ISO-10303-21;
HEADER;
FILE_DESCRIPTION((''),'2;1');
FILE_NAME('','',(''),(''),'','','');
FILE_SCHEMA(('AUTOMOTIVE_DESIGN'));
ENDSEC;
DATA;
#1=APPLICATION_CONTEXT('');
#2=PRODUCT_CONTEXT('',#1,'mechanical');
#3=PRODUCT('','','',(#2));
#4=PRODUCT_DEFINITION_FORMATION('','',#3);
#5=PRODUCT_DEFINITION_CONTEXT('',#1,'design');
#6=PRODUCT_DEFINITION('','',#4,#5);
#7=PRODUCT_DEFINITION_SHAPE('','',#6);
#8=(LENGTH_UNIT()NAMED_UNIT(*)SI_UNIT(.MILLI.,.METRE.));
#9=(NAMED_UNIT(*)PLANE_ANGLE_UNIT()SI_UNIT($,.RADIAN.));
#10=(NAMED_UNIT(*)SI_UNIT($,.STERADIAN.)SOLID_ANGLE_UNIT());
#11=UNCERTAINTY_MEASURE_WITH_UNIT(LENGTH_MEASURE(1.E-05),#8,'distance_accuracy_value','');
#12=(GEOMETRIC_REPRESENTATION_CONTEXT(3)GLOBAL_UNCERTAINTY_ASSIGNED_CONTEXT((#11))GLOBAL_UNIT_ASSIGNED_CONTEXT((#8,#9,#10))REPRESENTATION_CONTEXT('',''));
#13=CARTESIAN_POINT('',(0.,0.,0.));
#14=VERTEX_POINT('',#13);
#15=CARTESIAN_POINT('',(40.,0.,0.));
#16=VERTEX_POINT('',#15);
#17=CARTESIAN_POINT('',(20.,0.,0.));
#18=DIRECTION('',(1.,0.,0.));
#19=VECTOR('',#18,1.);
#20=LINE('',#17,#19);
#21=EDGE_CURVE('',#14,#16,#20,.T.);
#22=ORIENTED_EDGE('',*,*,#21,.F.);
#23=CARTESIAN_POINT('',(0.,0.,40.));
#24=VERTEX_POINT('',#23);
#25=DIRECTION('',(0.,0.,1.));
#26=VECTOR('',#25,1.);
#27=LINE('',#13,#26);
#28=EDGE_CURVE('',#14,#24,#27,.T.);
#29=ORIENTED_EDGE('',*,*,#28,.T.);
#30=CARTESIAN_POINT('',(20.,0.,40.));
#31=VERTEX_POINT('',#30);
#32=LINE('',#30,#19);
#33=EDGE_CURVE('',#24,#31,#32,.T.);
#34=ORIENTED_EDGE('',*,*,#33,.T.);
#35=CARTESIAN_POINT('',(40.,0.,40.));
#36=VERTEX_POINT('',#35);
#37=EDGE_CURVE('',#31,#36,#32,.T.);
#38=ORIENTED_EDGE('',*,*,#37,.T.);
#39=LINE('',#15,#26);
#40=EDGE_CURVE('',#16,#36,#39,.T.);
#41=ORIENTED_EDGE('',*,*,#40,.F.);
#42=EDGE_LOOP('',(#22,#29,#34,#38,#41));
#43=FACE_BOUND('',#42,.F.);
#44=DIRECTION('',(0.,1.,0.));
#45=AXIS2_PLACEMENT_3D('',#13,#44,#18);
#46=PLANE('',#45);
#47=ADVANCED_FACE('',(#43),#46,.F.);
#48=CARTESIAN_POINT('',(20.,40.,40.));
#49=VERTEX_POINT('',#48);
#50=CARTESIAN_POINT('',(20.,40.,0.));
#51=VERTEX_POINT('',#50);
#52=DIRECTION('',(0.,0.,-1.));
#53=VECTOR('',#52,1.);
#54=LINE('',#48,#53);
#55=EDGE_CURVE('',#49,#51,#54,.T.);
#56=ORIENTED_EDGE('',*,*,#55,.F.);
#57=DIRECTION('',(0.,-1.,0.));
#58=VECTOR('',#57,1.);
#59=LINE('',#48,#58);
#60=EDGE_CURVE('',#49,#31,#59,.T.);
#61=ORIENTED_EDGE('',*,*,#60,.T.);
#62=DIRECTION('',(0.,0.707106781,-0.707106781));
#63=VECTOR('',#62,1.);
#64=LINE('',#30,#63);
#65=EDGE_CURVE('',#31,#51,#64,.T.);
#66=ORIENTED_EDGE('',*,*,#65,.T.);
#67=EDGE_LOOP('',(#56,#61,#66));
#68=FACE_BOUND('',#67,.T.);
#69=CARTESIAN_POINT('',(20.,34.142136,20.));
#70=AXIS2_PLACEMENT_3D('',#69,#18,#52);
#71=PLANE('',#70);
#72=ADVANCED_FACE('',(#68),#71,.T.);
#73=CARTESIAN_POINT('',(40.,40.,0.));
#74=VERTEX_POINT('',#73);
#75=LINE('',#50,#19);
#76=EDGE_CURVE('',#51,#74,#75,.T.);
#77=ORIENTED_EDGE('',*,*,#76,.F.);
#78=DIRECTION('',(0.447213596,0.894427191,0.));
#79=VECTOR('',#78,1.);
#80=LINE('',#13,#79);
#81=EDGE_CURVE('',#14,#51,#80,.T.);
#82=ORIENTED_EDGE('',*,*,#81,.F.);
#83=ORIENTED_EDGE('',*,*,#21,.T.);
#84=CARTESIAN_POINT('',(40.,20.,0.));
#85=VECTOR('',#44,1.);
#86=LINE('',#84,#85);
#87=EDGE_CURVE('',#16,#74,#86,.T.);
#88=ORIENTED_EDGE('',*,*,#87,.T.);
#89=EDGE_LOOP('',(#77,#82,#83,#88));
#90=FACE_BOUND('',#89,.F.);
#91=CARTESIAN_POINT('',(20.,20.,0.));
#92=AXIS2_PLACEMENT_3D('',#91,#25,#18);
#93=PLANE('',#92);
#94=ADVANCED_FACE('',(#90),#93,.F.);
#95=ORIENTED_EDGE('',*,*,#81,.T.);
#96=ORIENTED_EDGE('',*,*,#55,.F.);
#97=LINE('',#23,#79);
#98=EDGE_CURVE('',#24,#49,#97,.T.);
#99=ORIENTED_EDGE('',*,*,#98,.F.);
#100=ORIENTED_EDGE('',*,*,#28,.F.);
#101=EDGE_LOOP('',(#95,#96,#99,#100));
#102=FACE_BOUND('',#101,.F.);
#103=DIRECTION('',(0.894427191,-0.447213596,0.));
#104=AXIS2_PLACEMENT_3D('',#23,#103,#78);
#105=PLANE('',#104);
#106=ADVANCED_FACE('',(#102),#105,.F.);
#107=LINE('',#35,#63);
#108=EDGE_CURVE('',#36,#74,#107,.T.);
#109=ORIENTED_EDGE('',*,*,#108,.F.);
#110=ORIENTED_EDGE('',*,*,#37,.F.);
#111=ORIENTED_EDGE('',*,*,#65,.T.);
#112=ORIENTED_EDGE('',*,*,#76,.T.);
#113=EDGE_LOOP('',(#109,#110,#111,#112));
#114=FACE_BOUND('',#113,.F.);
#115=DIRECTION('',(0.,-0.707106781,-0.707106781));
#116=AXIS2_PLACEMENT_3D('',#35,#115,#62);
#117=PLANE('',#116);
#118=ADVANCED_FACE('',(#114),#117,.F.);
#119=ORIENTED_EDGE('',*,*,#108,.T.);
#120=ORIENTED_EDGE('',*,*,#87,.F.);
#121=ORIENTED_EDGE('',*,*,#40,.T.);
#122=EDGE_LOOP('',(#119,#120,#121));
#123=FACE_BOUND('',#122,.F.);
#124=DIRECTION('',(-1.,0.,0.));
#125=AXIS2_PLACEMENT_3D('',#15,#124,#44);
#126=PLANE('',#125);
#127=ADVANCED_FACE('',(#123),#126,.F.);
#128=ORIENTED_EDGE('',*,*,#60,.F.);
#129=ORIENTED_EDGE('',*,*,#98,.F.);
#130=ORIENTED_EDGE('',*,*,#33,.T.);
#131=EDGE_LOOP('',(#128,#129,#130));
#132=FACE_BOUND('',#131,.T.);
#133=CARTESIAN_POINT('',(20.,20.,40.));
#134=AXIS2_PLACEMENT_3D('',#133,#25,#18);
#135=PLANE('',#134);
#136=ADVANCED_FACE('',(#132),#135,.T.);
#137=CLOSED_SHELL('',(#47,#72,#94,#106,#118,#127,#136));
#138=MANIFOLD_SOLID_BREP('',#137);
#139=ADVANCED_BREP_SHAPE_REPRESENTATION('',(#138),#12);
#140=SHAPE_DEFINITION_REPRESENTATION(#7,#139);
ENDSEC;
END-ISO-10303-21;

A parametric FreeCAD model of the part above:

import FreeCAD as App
import Part
import Sketcher
from FreeCAD import Vector

doc = App.newDocument("Part")
params = doc.addObject("Spreadsheet::Sheet", "Params")
for row, (alias, value) in enumerate([
    ("sketch1_width", "40 mm"),
    ("pad1_length", "40 mm"),
    ("sketch2_width", "20 mm"),
    ("sketch2_height", "40 mm"),
    ("pocket1_length", "40 mm"),
    ("sketch3_width", "40 mm"),
    ("pocket2_length", "20 mm"),
], start=1):
    params.set(f"A{row}", alias)
    params.set(f"B{row}", "=" + value)
    params.setAlias(f"B{row}", alias)

body = doc.addObject("PartDesign::Body", "Body")

# Sketch on XY plane
sketch1 = doc.addObject("Sketcher::SketchObject", "Sketch")
body.addObject(sketch1)
sketch1.AttachmentSupport = (doc.XY_Plane, [""])
sketch1.MapMode = "FlatFace"
sketch1.addGeometry(Part.LineSegment(Vector(0, 40, 0), Vector(0, 0, 0)), False)
sketch1.addGeometry(Part.LineSegment(Vector(0, 0, 0), Vector(40, 0, 0)), False)
sketch1.addGeometry(Part.LineSegment(Vector(40, 0, 0), Vector(40, 40, 0)), False)
sketch1.addGeometry(Part.LineSegment(Vector(40, 40, 0), Vector(0, 40, 0)), False)
sketch1.addConstraint(Sketcher.Constraint("Coincident", 0, 2, 1, 1))
sketch1.addConstraint(Sketcher.Constraint("Coincident", 1, 2, 2, 1))
sketch1.addConstraint(Sketcher.Constraint("Coincident", 2, 2, 3, 1))
sketch1.addConstraint(Sketcher.Constraint("Coincident", 3, 2, 0, 1))
sketch1.addConstraint(Sketcher.Constraint("Vertical", 0))
sketch1.addConstraint(Sketcher.Constraint("Horizontal", 1))
sketch1.addConstraint(Sketcher.Constraint("Vertical", 2))
sketch1.addConstraint(Sketcher.Constraint("Horizontal", 3))
sketch1.addConstraint(Sketcher.Constraint("Coincident", 0, 2, -1, 1))
sketch1.addConstraint(Sketcher.Constraint("Equal", 3, 0))
sketch1.addConstraint(Sketcher.Constraint("DistanceX", 1, 1, 1, 2, 40.0))
sketch1.setExpression("Constraints[10]", "Params.sketch1_width")
pad1 = doc.addObject("PartDesign::Pad", "Pad")
body.addObject(pad1)
pad1.Profile = sketch1
pad1.setExpression("Length", "Params.pad1_length")

# Sketch on XY plane
sketch2 = doc.addObject("Sketcher::SketchObject", "Sketch001")
body.addObject(sketch2)
sketch2.AttachmentSupport = (doc.XY_Plane, [""])
sketch2.MapMode = "FlatFace"
sketch2.AttachmentOffset = App.Placement(Vector(0, 0, 40), App.Rotation())
sketch2.addGeometry(Part.LineSegment(Vector(0, 0, 0), Vector(20, 40, 0)), False)
sketch2.addGeometry(Part.LineSegment(Vector(20, 40, 0), Vector(0, 40, 0)), False)
sketch2.addGeometry(Part.LineSegment(Vector(0, 40, 0), Vector(0, 0, 0)), False)
sketch2.addConstraint(Sketcher.Constraint("Coincident", 0, 2, 1, 1))
sketch2.addConstraint(Sketcher.Constraint("Coincident", 1, 2, 2, 1))
sketch2.addConstraint(Sketcher.Constraint("Coincident", 2, 2, 0, 1))
sketch2.addConstraint(Sketcher.Constraint("Horizontal", 1))
sketch2.addConstraint(Sketcher.Constraint("Vertical", 2))
sketch2.addConstraint(Sketcher.Constraint("Coincident", 2, 2, -1, 1))
sketch2.addConstraint(Sketcher.Constraint("DistanceX", 1, 2, 1, 1, 20.0))
sketch2.addConstraint(Sketcher.Constraint("DistanceY", 2, 2, 2, 1, 40.0))
sketch2.setExpression("Constraints[6]", "Params.sketch2_width")
sketch2.setExpression("Constraints[7]", "Params.sketch2_height")
pocket1 = doc.addObject("PartDesign::Pocket", "Pocket")
body.addObject(pocket1)
pocket1.Profile = sketch2
pocket1.setExpression("Length", "Params.pocket1_length")

# Sketch on YZ plane
sketch3 = doc.addObject("Sketcher::SketchObject", "Sketch002")
body.addObject(sketch3)
sketch3.AttachmentSupport = (doc.YZ_Plane, [""])
sketch3.MapMode = "FlatFace"
sketch3.AttachmentOffset = App.Placement(Vector(0, 0, 40), App.Rotation())
sketch3.addGeometry(Part.LineSegment(Vector(40, 0, 0), Vector(40, 40, 0)), False)
sketch3.addGeometry(Part.LineSegment(Vector(40, 40, 0), Vector(0, 40, 0)), False)
sketch3.addGeometry(Part.LineSegment(Vector(0, 40, 0), Vector(40, 0, 0)), False)
sketch3.addConstraint(Sketcher.Constraint("Coincident", 0, 2, 1, 1))
sketch3.addConstraint(Sketcher.Constraint("Coincident", 1, 2, 2, 1))
sketch3.addConstraint(Sketcher.Constraint("Coincident", 2, 2, 0, 1))
sketch3.addConstraint(Sketcher.Constraint("Vertical", 0))
sketch3.addConstraint(Sketcher.Constraint("Horizontal", 1))
sketch3.addConstraint(Sketcher.Constraint("PointOnObject", 1, 2, -2))
sketch3.addConstraint(Sketcher.Constraint("PointOnObject", 2, 2, -1))
sketch3.addConstraint(Sketcher.Constraint("Equal", 1, 0))
sketch3.addConstraint(Sketcher.Constraint("DistanceX", 1, 2, 1, 1, 40.0))
sketch3.setExpression("Constraints[8]", "Params.sketch3_width")
pocket2 = doc.addObject("PartDesign::Pocket", "Pocket001")
body.addObject(pocket2)
pocket2.Profile = sketch3
pocket2.setExpression("Length", "Params.pocket2_length")

doc.recompute()
